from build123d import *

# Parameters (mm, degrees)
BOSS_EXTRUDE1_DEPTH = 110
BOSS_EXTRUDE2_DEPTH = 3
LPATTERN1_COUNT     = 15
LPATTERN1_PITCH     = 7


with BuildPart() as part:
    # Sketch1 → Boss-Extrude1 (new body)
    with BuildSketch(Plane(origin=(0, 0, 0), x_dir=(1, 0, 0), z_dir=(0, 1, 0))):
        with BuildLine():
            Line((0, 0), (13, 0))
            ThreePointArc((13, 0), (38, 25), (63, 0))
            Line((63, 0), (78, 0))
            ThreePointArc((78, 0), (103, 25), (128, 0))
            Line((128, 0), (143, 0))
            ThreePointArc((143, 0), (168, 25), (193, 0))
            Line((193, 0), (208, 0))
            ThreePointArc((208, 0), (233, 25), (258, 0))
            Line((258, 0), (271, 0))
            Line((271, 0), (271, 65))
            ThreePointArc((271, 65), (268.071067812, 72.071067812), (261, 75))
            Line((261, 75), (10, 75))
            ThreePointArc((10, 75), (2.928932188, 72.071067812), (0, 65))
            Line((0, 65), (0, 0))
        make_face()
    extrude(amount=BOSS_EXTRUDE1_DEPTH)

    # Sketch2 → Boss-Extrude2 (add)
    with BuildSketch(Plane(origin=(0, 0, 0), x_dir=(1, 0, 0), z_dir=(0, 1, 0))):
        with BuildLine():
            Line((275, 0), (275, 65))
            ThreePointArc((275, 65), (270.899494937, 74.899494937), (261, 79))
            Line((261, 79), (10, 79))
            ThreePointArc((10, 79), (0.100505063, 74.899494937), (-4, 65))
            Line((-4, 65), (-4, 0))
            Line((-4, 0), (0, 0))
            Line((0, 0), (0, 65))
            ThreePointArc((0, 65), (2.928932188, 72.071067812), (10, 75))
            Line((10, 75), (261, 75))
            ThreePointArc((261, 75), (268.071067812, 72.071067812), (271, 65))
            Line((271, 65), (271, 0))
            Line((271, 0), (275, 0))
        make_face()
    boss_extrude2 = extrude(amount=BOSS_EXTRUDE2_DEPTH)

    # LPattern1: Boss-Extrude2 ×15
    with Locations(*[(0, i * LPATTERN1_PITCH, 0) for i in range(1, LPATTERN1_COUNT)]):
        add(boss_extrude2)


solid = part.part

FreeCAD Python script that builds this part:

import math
import FreeCAD as App
import Part
import Sketcher
Q = App.Units.Quantity

doc = App.newDocument("Part")
body = doc.addObject("PartDesign::Body", "Body")

# Sketch on XZ plane
sketch1 = body.newObject("Sketcher::SketchObject", "Sketch")
sketch1.AttachmentSupport = (doc.getObject("XZ_Plane"), [""])
sketch1.MapMode = "FlatFace"
sketch1.addGeometry([
    Part.LineSegment(App.Vector(0, 0, 0), App.Vector(13, 0, 0)),  # 0
    Part.ArcOfCircle(Part.Circle(App.Vector(38, 0, 0), App.Vector(0, 0, 1), 25), math.radians(180), math.radians(360)),  # 1
    Part.LineSegment(App.Vector(63, 0, 0), App.Vector(78, 0, 0)),  # 2
    Part.ArcOfCircle(Part.Circle(App.Vector(103, 0, 0), App.Vector(0, 0, 1), 25), math.radians(180), math.radians(360)),  # 3
    Part.LineSegment(App.Vector(128, 0, 0), App.Vector(143, 0, 0)),  # 4
    Part.ArcOfCircle(Part.Circle(App.Vector(168, 0, 0), App.Vector(0, 0, 1), 25), math.radians(180), math.radians(360)),  # 5
    Part.LineSegment(App.Vector(193, 0, 0), App.Vector(208, 0, 0)),  # 6
    Part.ArcOfCircle(Part.Circle(App.Vector(233, 0, 0), App.Vector(0, 0, 1), 25), math.radians(180), math.radians(360)),  # 7
    Part.LineSegment(App.Vector(258, 0, 0), App.Vector(271, 0, 0)),  # 8
    Part.LineSegment(App.Vector(271, 0, 0), App.Vector(271, -65, 0)),  # 9
    Part.ArcOfCircle(Part.Circle(App.Vector(261, -65, 0), App.Vector(0, 0, 1), 10), math.radians(-90), math.radians(0)),  # 10
    Part.LineSegment(App.Vector(261, -75, 0), App.Vector(10, -75, 0)),  # 11
    Part.ArcOfCircle(Part.Circle(App.Vector(10, -65, 0), App.Vector(0, 0, 1), 10), math.radians(180), math.radians(270)),  # 12
    Part.LineSegment(App.Vector(0, -65, 0), App.Vector(0, 0, 0)),  # 13
], False)
sketch1.addConstraint([
    Sketcher.Constraint("Coincident", 0, 2, 1, 1),
    Sketcher.Constraint("Coincident", 1, 2, 2, 1),
    Sketcher.Constraint("Coincident", 2, 2, 3, 1),
    Sketcher.Constraint("Coincident", 3, 2, 4, 1),
    Sketcher.Constraint("Coincident", 4, 2, 5, 1),
    Sketcher.Constraint("Coincident", 5, 2, 6, 1),
    Sketcher.Constraint("Coincident", 6, 2, 7, 1),
    Sketcher.Constraint("Coincident", 7, 2, 8, 1),
    Sketcher.Constraint("Coincident", 8, 2, 9, 1),
    Sketcher.Constraint("Tangent", 9, 2, 10, 2),
    Sketcher.Constraint("Tangent", 10, 1, 11, 1),
    Sketcher.Constraint("Tangent", 11, 2, 12, 2),
    Sketcher.Constraint("Tangent", 12, 1, 13, 1),
    Sketcher.Constraint("Coincident", 13, 2, 0, 1),
    Sketcher.Constraint("Horizontal", 0),
    Sketcher.Constraint("Horizontal", 2),
    Sketcher.Constraint("Horizontal", 4),
    Sketcher.Constraint("Horizontal", 6),
    Sketcher.Constraint("Horizontal", 8),
    Sketcher.Constraint("Vertical", 9),
    Sketcher.Constraint("Horizontal", 11),
    Sketcher.Constraint("Vertical", 13),
    Sketcher.Constraint("Coincident", 13, 2, -1, 1),
    Sketcher.Constraint("Equal", 1, 3),
    Sketcher.Constraint("Equal", 3, 5),
    Sketcher.Constraint("Equal", 5, 7),
    Sketcher.Constraint("Equal", 10, 12),
    Sketcher.Constraint("PointOnObject", 1, 3, -1),
    Sketcher.Constraint("PointOnObject", 3, 3, -1),
    Sketcher.Constraint("PointOnObject", 5, 3, -1),
    Sketcher.Constraint("PointOnObject", 7, 3, -1),
    Sketcher.Constraint("PointOnObject", 1, 2, -1),
    Sketcher.Constraint("PointOnObject", 3, 2, -1),
    Sketcher.Constraint("PointOnObject", 5, 2, -1),
    Sketcher.Constraint("PointOnObject", 7, 2, -1),
    Sketcher.Constraint("Equal", 2, 4),
    Sketcher.Constraint("Equal", 4, 6),
    Sketcher.Constraint("Equal", 0, 8),
    Sketcher.Constraint("Radius", 1, Q("25 mm")),
    Sketcher.Constraint("Radius", 10, Q("10 mm")),
    Sketcher.Constraint("DistanceX", 0, 1, 0, 2, Q("13 mm")),
    Sketcher.Constraint("DistanceX", 2, 1, 2, 2, Q("15 mm")),
    Sketcher.Constraint("DistanceY", 9, 2, 9, 1, Q("65 mm")),
])
pad1 = body.newObject("PartDesign::Pad", "Pad")
pad1.Profile = sketch1
pad1.Length = 110
pad1.Reversed = True

# Sketch on XZ plane
sketch2 = body.newObject("Sketcher::SketchObject", "Sketch001")
sketch2.AttachmentSupport = (doc.getObject("XZ_Plane"), [""])
sketch2.MapMode = "FlatFace"
sketch2.addGeometry([
    Part.LineSegment(App.Vector(275, 0, 0), App.Vector(275, -65, 0)),  # 0
    Part.ArcOfCircle(Part.Circle(App.Vector(261, -65, 0), App.Vector(0, 0, 1), 14), math.radians(-90), math.radians(0)),  # 1
    Part.LineSegment(App.Vector(261, -79, 0), App.Vector(10, -79, 0)),  # 2
    Part.ArcOfCircle(Part.Circle(App.Vector(10, -65, 0), App.Vector(0, 0, 1), 14), math.radians(180), math.radians(270)),  # 3
    Part.LineSegment(App.Vector(-4, -65, 0), App.Vector(-4, 0, 0)),  # 4
    Part.LineSegment(App.Vector(-4, 0, 0), App.Vector(0, 0, 0)),  # 5
    Part.LineSegment(App.Vector(0, 0, 0), App.Vector(0, -65, 0)),  # 6
    Part.ArcOfCircle(Part.Circle(App.Vector(10, -65, 0), App.Vector(0, 0, 1), 10), math.radians(180), math.radians(270)),  # 7
    Part.LineSegment(App.Vector(10, -75, 0), App.Vector(261, -75, 0)),  # 8
    Part.ArcOfCircle(Part.Circle(App.Vector(261, -65, 0), App.Vector(0, 0, 1), 10), math.radians(-90), math.radians(0)),  # 9
    Part.LineSegment(App.Vector(271, -65, 0), App.Vector(271, 0, 0)),  # 10
    Part.LineSegment(App.Vector(271, 0, 0), App.Vector(275, 0, 0)),  # 11
], False)
sketch2.addConstraint([
    Sketcher.Constraint("Tangent", 0, 2, 1, 2),
    Sketcher.Constraint("Tangent", 1, 1, 2, 1),
    Sketcher.Constraint("Tangent", 2, 2, 3, 2),
    Sketcher.Constraint("Tangent", 3, 1, 4, 1),
    Sketcher.Constraint("Coincident", 4, 2, 5, 1),
    Sketcher.Constraint("Coincident", 5, 2, 6, 1),
    Sketcher.Constraint("Tangent", 6, 2, 7, 1),
    Sketcher.Constraint("Tangent", 7, 2, 8, 1),
    Sketcher.Constraint("Tangent", 8, 2, 9, 1),
    Sketcher.Constraint("Tangent", 9, 2, 10, 1),
    Sketcher.Constraint("Coincident", 10, 2, 11, 1),
    Sketcher.Constraint("Coincident", 11, 2, 0, 1),
    Sketcher.Constraint("Vertical", 0),
    Sketcher.Constraint("Horizontal", 2),
    Sketcher.Constraint("Vertical", 4),
    Sketcher.Constraint("Horizontal", 5),
    Sketcher.Constraint("Vertical", 6),
    Sketcher.Constraint("Horizontal", 8),
    Sketcher.Constraint("Vertical", 10),
    Sketcher.Constraint("Horizontal", 11),
    Sketcher.Constraint("Coincident", 5, 2, -1, 1),
    Sketcher.Constraint("Coincident", 7, 3, 3, 3),
    Sketcher.Constraint("Coincident", 9, 3, 1, 3),
    Sketcher.Constraint("Equal", 1, 3),
    Sketcher.Constraint("PointOnObject", 10, 2, -1),
    Sketcher.Constraint("Radius", 1, Q("14 mm")),
    Sketcher.Constraint("Radius", 7, Q("10 mm")),
    Sketcher.Constraint("DistanceX", 2, 2, 2, 1, Q("251 mm")),
    Sketcher.Constraint("DistanceY", 0, 2, 0, 1, Q("65 mm")),
])
pad2 = body.newObject("PartDesign::Pad", "Pad001")
pad2.Profile = sketch2
pad2.Length = 3
pad2.Reversed = True
doc.recompute()

linearpattern = body.newObject("PartDesign::LinearPattern", "LinearPattern")
linearpattern.Originals = [pad2]
linearpattern.Direction = (doc.getObject("Y_Axis"), [""])
linearpattern.Mode = "offset"
linearpattern.Offset = 7
linearpattern.Occurrences = 15
body.Tip = linearpattern

doc.recompute()
